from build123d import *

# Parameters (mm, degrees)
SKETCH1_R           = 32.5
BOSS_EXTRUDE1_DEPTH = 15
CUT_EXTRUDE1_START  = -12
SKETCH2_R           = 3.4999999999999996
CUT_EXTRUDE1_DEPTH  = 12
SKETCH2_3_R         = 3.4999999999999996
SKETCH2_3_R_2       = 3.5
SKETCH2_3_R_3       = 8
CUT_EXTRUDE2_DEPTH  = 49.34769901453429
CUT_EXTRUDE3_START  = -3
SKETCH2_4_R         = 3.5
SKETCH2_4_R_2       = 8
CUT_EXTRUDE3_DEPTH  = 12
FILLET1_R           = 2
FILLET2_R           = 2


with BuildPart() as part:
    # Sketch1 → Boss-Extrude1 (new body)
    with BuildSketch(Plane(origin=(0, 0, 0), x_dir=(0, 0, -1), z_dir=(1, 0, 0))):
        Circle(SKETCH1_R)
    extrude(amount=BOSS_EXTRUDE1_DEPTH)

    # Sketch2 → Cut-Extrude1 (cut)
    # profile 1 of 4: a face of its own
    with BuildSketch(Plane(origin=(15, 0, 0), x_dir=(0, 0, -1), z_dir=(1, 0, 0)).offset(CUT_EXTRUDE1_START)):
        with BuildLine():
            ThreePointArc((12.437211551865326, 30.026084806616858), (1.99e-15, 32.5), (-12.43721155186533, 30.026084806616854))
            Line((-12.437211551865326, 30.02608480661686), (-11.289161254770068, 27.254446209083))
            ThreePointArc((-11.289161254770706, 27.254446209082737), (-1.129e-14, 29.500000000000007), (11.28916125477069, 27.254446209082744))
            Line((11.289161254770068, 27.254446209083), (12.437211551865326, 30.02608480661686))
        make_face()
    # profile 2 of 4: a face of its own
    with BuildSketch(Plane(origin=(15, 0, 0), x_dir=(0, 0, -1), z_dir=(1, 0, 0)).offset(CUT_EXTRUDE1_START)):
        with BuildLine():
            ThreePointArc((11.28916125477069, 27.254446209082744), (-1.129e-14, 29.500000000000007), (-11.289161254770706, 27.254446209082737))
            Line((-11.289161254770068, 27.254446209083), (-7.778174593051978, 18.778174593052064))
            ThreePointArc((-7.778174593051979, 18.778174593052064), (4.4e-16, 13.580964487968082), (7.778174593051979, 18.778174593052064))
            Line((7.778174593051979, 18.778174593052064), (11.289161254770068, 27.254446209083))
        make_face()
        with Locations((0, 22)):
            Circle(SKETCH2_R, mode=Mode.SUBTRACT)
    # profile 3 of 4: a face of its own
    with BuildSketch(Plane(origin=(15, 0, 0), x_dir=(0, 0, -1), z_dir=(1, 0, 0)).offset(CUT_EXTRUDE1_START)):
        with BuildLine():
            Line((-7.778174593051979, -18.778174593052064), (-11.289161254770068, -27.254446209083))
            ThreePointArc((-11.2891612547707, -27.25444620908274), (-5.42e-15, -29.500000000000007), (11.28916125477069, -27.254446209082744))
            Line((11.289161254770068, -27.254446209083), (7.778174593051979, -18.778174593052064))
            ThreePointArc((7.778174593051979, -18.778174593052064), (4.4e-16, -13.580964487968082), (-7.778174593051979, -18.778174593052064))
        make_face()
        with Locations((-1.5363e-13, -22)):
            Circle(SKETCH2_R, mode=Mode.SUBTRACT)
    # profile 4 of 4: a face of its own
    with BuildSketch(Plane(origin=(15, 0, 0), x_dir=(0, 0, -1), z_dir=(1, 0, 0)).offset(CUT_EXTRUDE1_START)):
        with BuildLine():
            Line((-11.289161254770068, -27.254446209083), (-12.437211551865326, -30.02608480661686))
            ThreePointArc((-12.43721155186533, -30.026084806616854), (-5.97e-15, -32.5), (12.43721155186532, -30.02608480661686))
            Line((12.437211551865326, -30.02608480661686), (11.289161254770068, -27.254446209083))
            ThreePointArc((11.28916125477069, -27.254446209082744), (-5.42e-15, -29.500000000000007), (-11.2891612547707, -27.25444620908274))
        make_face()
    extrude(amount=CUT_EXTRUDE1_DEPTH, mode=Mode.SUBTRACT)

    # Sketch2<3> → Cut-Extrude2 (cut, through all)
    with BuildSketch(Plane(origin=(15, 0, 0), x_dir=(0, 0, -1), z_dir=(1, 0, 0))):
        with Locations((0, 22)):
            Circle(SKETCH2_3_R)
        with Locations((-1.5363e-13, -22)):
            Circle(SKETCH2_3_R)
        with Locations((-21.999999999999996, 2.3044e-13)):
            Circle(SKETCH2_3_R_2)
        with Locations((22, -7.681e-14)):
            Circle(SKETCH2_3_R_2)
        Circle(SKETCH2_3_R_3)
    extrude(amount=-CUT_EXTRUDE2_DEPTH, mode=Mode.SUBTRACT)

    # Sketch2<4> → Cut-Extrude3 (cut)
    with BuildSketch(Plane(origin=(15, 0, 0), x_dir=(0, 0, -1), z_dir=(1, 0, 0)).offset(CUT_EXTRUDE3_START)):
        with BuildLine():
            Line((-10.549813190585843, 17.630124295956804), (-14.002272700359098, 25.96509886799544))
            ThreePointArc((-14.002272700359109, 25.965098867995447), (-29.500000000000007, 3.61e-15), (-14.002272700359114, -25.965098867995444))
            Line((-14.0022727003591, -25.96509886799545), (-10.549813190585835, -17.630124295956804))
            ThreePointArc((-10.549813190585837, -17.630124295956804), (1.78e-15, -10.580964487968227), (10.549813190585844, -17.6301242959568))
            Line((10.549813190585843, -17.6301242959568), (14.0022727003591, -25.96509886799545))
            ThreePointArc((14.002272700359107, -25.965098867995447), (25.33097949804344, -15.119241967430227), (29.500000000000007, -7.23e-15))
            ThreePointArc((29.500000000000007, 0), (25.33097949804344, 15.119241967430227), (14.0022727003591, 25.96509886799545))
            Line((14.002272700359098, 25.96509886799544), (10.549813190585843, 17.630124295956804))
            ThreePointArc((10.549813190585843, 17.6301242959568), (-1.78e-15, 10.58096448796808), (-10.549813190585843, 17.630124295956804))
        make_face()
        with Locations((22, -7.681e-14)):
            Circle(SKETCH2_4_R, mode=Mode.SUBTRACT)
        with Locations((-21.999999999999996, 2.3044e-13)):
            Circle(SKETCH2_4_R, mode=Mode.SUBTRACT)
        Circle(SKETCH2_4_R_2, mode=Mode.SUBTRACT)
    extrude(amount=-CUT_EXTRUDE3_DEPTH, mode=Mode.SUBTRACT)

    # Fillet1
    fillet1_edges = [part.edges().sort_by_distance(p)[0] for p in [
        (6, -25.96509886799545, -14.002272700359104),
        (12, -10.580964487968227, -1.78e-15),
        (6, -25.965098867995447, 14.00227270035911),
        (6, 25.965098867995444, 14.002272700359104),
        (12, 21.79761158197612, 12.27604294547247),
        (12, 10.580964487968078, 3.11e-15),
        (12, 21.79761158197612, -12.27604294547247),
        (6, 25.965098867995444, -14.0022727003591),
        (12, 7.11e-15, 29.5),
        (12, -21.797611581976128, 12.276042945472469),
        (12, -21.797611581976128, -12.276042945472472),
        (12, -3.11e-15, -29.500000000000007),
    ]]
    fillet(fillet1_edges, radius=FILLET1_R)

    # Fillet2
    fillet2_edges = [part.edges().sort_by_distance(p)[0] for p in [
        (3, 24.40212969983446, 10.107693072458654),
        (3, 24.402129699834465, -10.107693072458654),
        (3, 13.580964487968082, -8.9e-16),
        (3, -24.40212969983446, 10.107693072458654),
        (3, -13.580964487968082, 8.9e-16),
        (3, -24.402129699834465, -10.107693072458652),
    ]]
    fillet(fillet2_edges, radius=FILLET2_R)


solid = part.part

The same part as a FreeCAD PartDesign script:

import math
import FreeCAD as App
import Part
import Sketcher
from FreeCAD import Vector
Q = App.Units.Quantity


def edges_at(feature, points):
    """Names of the edges that pass closest to the given points."""
    edges = feature.Shape.Edges
    near = lambda p: min(range(len(edges)), key=lambda i: edges[i].distToShape(Part.Vertex(*p))[0])
    return sorted({f"Edge{near(p) + 1}" for p in points})

doc = App.newDocument("Part")
body = doc.addObject("PartDesign::Body", "Body")

# Sketch on YZ plane
sketch1 = doc.addObject("Sketcher::SketchObject", "Sketch")
body.addObject(sketch1)
sketch1.AttachmentSupport = (doc.YZ_Plane, [""])
sketch1.MapMode = "FlatFace"
sketch1.addGeometry(Part.Circle(Vector(0, 0, 0), Vector(0, 0, 1), 32), False)
sketch1.addConstraint([
    Sketcher.Constraint("Coincident", 0, 3, -1, 1),
    Sketcher.Constraint("Diameter", 0, 65.0),
])
pad1 = doc.addObject("PartDesign::Pad", "Pad")
body.addObject(pad1)
pad1.Profile = sketch1
pad1.Length = 15

# Sketch on YZ plane
sketch2 = doc.addObject("Sketcher::SketchObject", "Sketch001")
body.addObject(sketch2)
sketch2.AttachmentSupport = (doc.YZ_Plane, [""])
sketch2.MapMode = "FlatFace"
sketch2.AttachmentOffset = App.Placement(Vector(0, 0, 3), App.Rotation())
sketch2.addGeometry([
    Part.ArcOfCircle(Part.Circle(Vector(0, 0, 0), Vector(0, 0, 1), 32.5), math.radians(-22), math.radians(22)),  # 0
    Part.LineSegment(Vector(30, 12.4, 0), Vector(18.8, 7.8, 0)),  # 1
    Part.ArcOfCircle(Part.Circle(Vector(22, 0, 0), Vector(0, 0, 1), 8.4), math.radians(113), math.radians(247)),  # 2
    Part.LineSegment(Vector(18.8, -7.8, 0), Vector(30, -12.4, 0)),  # 3
    Part.Circle(Vector(22, 0, 0), Vector(0, 0, 1), 3.5),  # 4
    Part.LineSegment(Vector(-18.8, 7.8, 0), Vector(-30, 12.4, 0)),  # 5
    Part.ArcOfCircle(Part.Circle(Vector(0, 0, 0), Vector(0, 0, 1), 32.5), math.radians(158), math.radians(202)),  # 6
    Part.LineSegment(Vector(-30, -12.4, 0), Vector(-18.8, -7.8, 0)),  # 7
    Part.ArcOfCircle(Part.Circle(Vector(-22, 0, 0), Vector(0, 0, 1), 8.4), math.radians(-67), math.radians(67)),  # 8
    Part.Circle(Vector(-22, 0, 0), Vector(0, 0, 1), 3.5),  # 9
], False)
sketch2.addConstraint([
    Sketcher.Constraint("Coincident", 0, 2, 1, 1),
    Sketcher.Constraint("Tangent", 1, 2, 2, 1),
    Sketcher.Constraint("Tangent", 2, 2, 3, 1),
    Sketcher.Constraint("Coincident", 3, 2, 0, 1),
    Sketcher.Constraint("Coincident", 5, 2, 6, 1),
    Sketcher.Constraint("Coincident", 6, 2, 7, 1),
    Sketcher.Constraint("Tangent", 7, 2, 8, 1),
    Sketcher.Constraint("Tangent", 8, 2, 5, 1),
    Sketcher.Constraint("Coincident", 0, 3, -1, 1),
    Sketcher.Constraint("Coincident", 6, 3, -1, 1),
    Sketcher.Constraint("Coincident", 4, 3, 2, 3),
    Sketcher.Constraint("Coincident", 9, 3, 8, 3),
    Sketcher.Constraint("Equal", 0, 6),
    Sketcher.Constraint("Equal", 2, 8),
    Sketcher.Constraint("Equal", 4, 9),
    Sketcher.Constraint("Symmetric", 2, 3, 8, 3, -1, 1),
    Sketcher.Constraint("Symmetric", 2, 2, 7, 2, -2),
    Sketcher.Constraint("Parallel", 3, 5),
    Sketcher.Constraint("Parallel", 1, 7),
    Sketcher.Constraint("Diameter", 4, 7.0),
    Sketcher.Constraint("Radius", 0, 32.5),
    Sketcher.Constraint("DistanceX", -1, 1, 2, 3, 22.0),
    Sketcher.Constraint("Angle", 1, Q("-157.5 deg")),
    Sketcher.Constraint("Radius", 2, 8.419036),
])
pocket1 = doc.addObject("PartDesign::Pocket", "Pocket")
body.addObject(pocket1)
pocket1.Profile = sketch2
pocket1.Length = 12
pocket1.Reversed = True

# Sketch on YZ plane
sketch3 = doc.addObject("Sketcher::SketchObject", "Sketch002")
body.addObject(sketch3)
sketch3.AttachmentSupport = (doc.YZ_Plane, [""])
sketch3.MapMode = "FlatFace"
sketch3.AttachmentOffset = App.Placement(Vector(0, 0, 15), App.Rotation())
sketch3.addGeometry([
    Part.Circle(Vector(22, 0, 0), Vector(0, 0, 1), 3.5),  # 0
    Part.Circle(Vector(-22, 0, 0), Vector(0, 0, 1), 3.5),  # 1
    Part.Circle(Vector(0, 22, 0), Vector(0, 0, 1), 3.5),  # 2
    Part.Circle(Vector(0, -22, 0), Vector(0, 0, 1), 3.5),  # 3
    Part.Circle(Vector(0, 0, 0), Vector(0, 0, 1), 8),  # 4
], False)
sketch3.addConstraint([
    Sketcher.Constraint("Coincident", 4, 3, -1, 1),
    Sketcher.Constraint("Equal", 0, 1),
    Sketcher.Constraint("Equal", 1, 2),
    Sketcher.Constraint("Equal", 2, 3),
    Sketcher.Constraint("Symmetric", 0, 3, 1, 3, -1, 1),
    Sketcher.Constraint("Symmetric", 2, 3, 3, 3, -1, 1),
    Sketcher.Constraint("PointOnObject", 0, 3, -1),
    Sketcher.Constraint("PointOnObject", 2, 3, -2),
    Sketcher.Constraint("Diameter", 0, 7.0),
    Sketcher.Constraint("Diameter", 4, 16.0),
    Sketcher.Constraint("DistanceX", -1, 1, 0, 3, 22.0),
    Sketcher.Constraint("DistanceY", -1, 1, 2, 3, 22.0),
])
pocket2 = doc.addObject("PartDesign::Pocket", "Pocket001")
body.addObject(pocket2)
pocket2.Profile = sketch3
pocket2.Type = "ThroughAll"

# Sketch on YZ plane
sketch4 = doc.addObject("Sketcher::SketchObject", "Sketch003")
body.addObject(sketch4)
sketch4.AttachmentSupport = (doc.YZ_Plane, [""])
sketch4.MapMode = "FlatFace"
sketch4.AttachmentOffset = App.Placement(Vector(0, 0, 12), App.Rotation())
sketch4.addGeometry([
    Part.LineSegment(Vector(17.6, 10.5, 0), Vector(26, 14, 0)),  # 0
    Part.ArcOfCircle(Part.Circle(Vector(0, 0, 0), Vector(0, 0, 1), 29.5), math.radians(28), math.radians(152)),  # 1
    Part.LineSegment(Vector(-26, 14, 0), Vector(-17.6, 10.5, 0)),  # 2
    Part.ArcOfCircle(Part.Circle(Vector(-22, 0, 0), Vector(0, 0, 1), 11.4), math.radians(-68), math.radians(68)),  # 3
    Part.LineSegment(Vector(-17.6, -10.5, 0), Vector(-26, -14, 0)),  # 4
    Part.ArcOfCircle(Part.Circle(Vector(0, 0, 0), Vector(0, 0, 1), 29.5), math.radians(-152), math.radians(-28)),  # 5
    Part.LineSegment(Vector(26, -14, 0), Vector(17.6, -10.5, 0)),  # 6
    Part.ArcOfCircle(Part.Circle(Vector(22, 0, 0), Vector(0, 0, 1), 11.4), math.radians(112), math.radians(248)),  # 7
    Part.Circle(Vector(0, -22, 0), Vector(0, 0, 1), 3.5),  # 8
    Part.Circle(Vector(0, 22, 0), Vector(0, 0, 1), 3.5),  # 9
    Part.Circle(Vector(0, 0, 0), Vector(0, 0, 1), 8),  # 10
], False)
sketch4.addConstraint([
    Sketcher.Constraint("Coincident", 0, 2, 1, 1),
    Sketcher.Constraint("Coincident", 1, 2, 2, 1),
    Sketcher.Constraint("Tangent", 2, 2, 3, 2),
    Sketcher.Constraint("Tangent", 3, 1, 4, 1),
    Sketcher.Constraint("Coincident", 4, 2, 5, 1),
    Sketcher.Constraint("Coincident", 5, 2, 6, 1),
    Sketcher.Constraint("Tangent", 6, 2, 7, 2),
    Sketcher.Constraint("Tangent", 7, 1, 0, 1),
    Sketcher.Constraint("Coincident", 1, 3, -1, 1),
    Sketcher.Constraint("Coincident", 5, 3, -1, 1),
    Sketcher.Constraint("Coincident", 10, 3, -1, 1),
    Sketcher.Constraint("Equal", 1, 5),
    Sketcher.Constraint("Equal", 3, 7),
    Sketcher.Constraint("Equal", 8, 9),
    Sketcher.Constraint("Symmetric", 3, 3, 7, 3, -1, 1),
    Sketcher.Constraint("Symmetric", 8, 3, 9, 3, -1, 1),
    Sketcher.Constraint("Symmetric", 3, 1, 6, 2, -2),
    Sketcher.Constraint("PointOnObject", 8, 3, -2),
    Sketcher.Constraint("Parallel", 0, 4),
    Sketcher.Constraint("Parallel", 2, 6),
    Sketcher.Constraint("Diameter", 8, 7.0),
    Sketcher.Constraint("Diameter", 10, 16.0),
    Sketcher.Constraint("Radius", 1, 29.5),
    Sketcher.Constraint("DistanceX", 3, 3, -1, 1, 22.0),
    Sketcher.Constraint("DistanceY", 8, 3, -1, 1, 22.0),
    Sketcher.Constraint("Angle", 0, Q("22.5 deg")),
    Sketcher.Constraint("Radius", 3, 11.419036),
])
pocket3 = doc.addObject("PartDesign::Pocket", "Pocket002")
body.addObject(pocket3)
pocket3.Profile = sketch4
pocket3.Length = 12
doc.recompute()

fillet = doc.addObject("PartDesign::Fillet", "Fillet")
body.addObject(fillet)
fillet.Base = (pocket3, edges_at(pocket3, [
    (6, -25.965, -14.002),
    (12, -10.581, 0),
    (6, -25.965, 14.002),
    (6, 25.965, 14.002),
    (12, 21.798, 12.276),
    (12, 10.581, 0),
    (12, 21.798, -12.276),
    (6, 25.965, -14.002),
    (12, 0, 29.5),
    (12, -21.798, 12.276),
    (12, -21.798, -12.276),
    (12, 0, -29.5),
]))
fillet.Radius = 2
doc.recompute()

fillet2 = doc.addObject("PartDesign::Fillet", "Fillet001")
body.addObject(fillet2)
fillet2.Base = (fillet, edges_at(fillet, [
    (3, 24.402, 10.108),
    (3, 24.402, -10.108),
    (3, 13.581, 0),
    (3, -24.402, 10.108),
    (3, -13.581, 0),
    (3, -24.402, -10.108),
]))
fillet2.Radius = 2

doc.recompute()
